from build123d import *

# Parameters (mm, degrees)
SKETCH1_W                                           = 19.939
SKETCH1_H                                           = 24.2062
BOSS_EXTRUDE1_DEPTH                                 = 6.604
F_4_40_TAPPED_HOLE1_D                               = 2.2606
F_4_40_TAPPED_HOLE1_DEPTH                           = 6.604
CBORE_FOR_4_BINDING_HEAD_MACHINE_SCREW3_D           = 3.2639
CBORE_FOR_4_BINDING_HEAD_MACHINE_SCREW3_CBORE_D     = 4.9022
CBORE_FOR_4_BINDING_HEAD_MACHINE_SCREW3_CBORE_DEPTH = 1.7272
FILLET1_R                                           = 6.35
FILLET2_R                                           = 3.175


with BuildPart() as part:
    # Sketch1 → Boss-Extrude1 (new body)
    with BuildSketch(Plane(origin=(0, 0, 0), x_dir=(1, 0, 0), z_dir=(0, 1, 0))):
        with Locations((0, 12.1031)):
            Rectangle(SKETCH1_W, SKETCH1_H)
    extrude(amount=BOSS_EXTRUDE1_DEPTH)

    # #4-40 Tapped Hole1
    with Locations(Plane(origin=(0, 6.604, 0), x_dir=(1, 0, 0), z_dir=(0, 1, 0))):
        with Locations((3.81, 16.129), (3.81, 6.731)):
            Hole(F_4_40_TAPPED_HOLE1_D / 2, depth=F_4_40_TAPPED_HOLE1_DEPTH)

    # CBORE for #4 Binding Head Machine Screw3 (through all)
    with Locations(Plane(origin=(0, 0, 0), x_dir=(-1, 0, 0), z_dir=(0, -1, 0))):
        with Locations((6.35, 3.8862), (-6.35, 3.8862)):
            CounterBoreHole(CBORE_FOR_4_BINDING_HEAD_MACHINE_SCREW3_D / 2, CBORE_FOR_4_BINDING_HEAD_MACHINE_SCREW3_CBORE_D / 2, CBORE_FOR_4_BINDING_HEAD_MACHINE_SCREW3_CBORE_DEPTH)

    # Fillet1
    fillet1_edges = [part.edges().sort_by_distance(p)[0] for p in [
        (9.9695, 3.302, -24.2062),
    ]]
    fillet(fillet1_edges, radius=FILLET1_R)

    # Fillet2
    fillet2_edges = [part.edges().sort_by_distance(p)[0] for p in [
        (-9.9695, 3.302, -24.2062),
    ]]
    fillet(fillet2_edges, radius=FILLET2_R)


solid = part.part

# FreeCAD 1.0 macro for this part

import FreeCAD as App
import Part
import Sketcher
Q = App.Units.Quantity


def edges_at(feature, points):
    """Names of the edges that pass closest to the given points."""
    edges = feature.Shape.Edges
    near = lambda p: min(range(len(edges)), key=lambda i: edges[i].distToShape(Part.Vertex(*p))[0])
    return sorted({f"Edge{near(p) + 1}" for p in points})


def add_polygon(sketch, points):
    """Adds a closed chain of lines whose ends are joined by coincident constraints."""
    first, n = sketch.GeometryCount, len(points)
    for a, b in zip(points, points[1:] + points[:1]):
        sketch.addGeometry(Part.LineSegment(App.Vector(*a, 0), App.Vector(*b, 0)), False)
    for i in range(n):
        sketch.addConstraint(Sketcher.Constraint("Coincident", first + i, 2, first + (i + 1) % n, 1))

doc = App.newDocument("Part")
params = doc.addObject("Spreadsheet::Sheet", "Params")
for row, (alias, value) in enumerate([
    ("sketch1_width", "0.785 in"),
    ("sketch1_height", "0.953 in"),
    ("pad1_length", "0.26 in"),
    ("sketch2_diameter", "0.089 in"),
    ("hole_diameter", "0.089 in"),
    ("hole_depth", "0.26 in"),
    ("hole2_diameter", "0.1285 in"),
    ("hole2_cbore_diameter", "0.193 in"),
    ("hole2_cbore_depth", "0.068 in"),
    ("fillet_radius", "0.25 in"),
    ("fillet2_radius", "0.125 in"),
], start=1):
    params.set(f"A{row}", alias)
    params.set(f"B{row}", "=" + value)
    params.setAlias(f"B{row}", alias)

body = doc.addObject("PartDesign::Body", "Body")

# Sketch on XZ plane
sketch1 = body.newObject("Sketcher::SketchObject", "Sketch")
sketch1.AttachmentSupport = (doc.getObject("XZ_Plane"), [""])
sketch1.MapMode = "FlatFace"
add_polygon(sketch1, [(-10, -24), (-10, 0), (10, 0), (10, -24)])  # lines 0-3
sketch1.addConstraint(Sketcher.Constraint("Vertical", 0))
sketch1.addConstraint(Sketcher.Constraint("Horizontal", 1))
sketch1.addConstraint(Sketcher.Constraint("Vertical", 2))
sketch1.addConstraint(Sketcher.Constraint("Horizontal", 3))
sketch1.addConstraint(Sketcher.Constraint("Symmetric", 0, 2, 1, 2, -1, 1))
sketch1.addConstraint(Sketcher.Constraint("DistanceX", 1, 1, 1, 2, Q("0.785 in")))
sketch1.addConstraint(Sketcher.Constraint("DistanceY", 0, 1, 0, 2, Q("0.953 in")))
sketch1.setExpression("Constraints[9]", "Params.sketch1_width")
sketch1.setExpression("Constraints[10]", "Params.sketch1_height")
pad1 = body.newObject("PartDesign::Pad", "Pad")
pad1.Profile = sketch1
pad1.setExpression("Length", "Params.pad1_length")
pad1.Reversed = True

# Sketch on XZ plane
sketch2 = body.newObject("Sketcher::SketchObject", "Sketch001")
sketch2.AttachmentSupport = (doc.getObject("XZ_Plane"), [""])
sketch2.MapMode = "FlatFace"
sketch2.AttachmentOffset = App.Placement(App.Vector(0, 0, -0.26 * 25.4), App.Rotation())
sketch2.addGeometry(Part.Circle(App.Vector(3.8, -16.1, 0), App.Vector(0, 0, 1), 1.1), False)
sketch2.addGeometry(Part.Circle(App.Vector(3.8, -6.7, 0), App.Vector(0, 0, 1), 1.1), False)
sketch2.addConstraint(Sketcher.Constraint("Equal", 0, 1))
sketch2.addConstraint(Sketcher.Constraint("Vertical", 0, 3, 1, 3))
sketch2.addConstraint(Sketcher.Constraint("Diameter", 0, Q("0.089 in")))
sketch2.addConstraint(Sketcher.Constraint("DistanceX", -1, 1, 0, 3, Q("0.15 in")))
sketch2.addConstraint(Sketcher.Constraint("DistanceY", 0, 3, 1, 3, Q("0.37 in")))
sketch2.addConstraint(Sketcher.Constraint("DistanceY", 0, 3, -1, 1, Q("0.635 in")))
sketch2.setExpression("Constraints[2]", "Params.sketch2_diameter")
doc.recompute()
hole = body.newObject("PartDesign::Hole", "Hole")
hole.Profile = sketch2
hole.ThreadType = "None"
hole.setExpression("Diameter", "Params.hole_diameter")
hole.DepthType = "Dimension"
hole.setExpression("Depth", "Params.hole_depth")
hole.DrillPoint = "Flat"
hole.Reversed = True

# Sketch on XZ plane
sketch3 = body.newObject("Sketcher::SketchObject", "Sketch002")
sketch3.AttachmentSupport = (doc.getObject("XZ_Plane"), [""])
sketch3.MapMode = "FlatFace"
sketch3.addGeometry(Part.Circle(App.Vector(-6.3, -3.9, 0), App.Vector(0, 0, 1), 1.6), False)
sketch3.addGeometry(Part.Circle(App.Vector(6.3, -3.9, 0), App.Vector(0, 0, 1), 1.6), False)
sketch3.addConstraint(Sketcher.Constraint("Equal", 0, 1))
sketch3.addConstraint(Sketcher.Constraint("Symmetric", 0, 3, 1, 3, -2))
sketch3.addConstraint(Sketcher.Constraint("Diameter", 0, Q("0.1285 in")))
sketch3.addConstraint(Sketcher.Constraint("DistanceX", 0, 3, 1, 3, Q("0.5 in")))
sketch3.addConstraint(Sketcher.Constraint("DistanceY", 0, 3, -1, 1, Q("0.153 in")))
doc.recompute()
hole2 = body.newObject("PartDesign::Hole", "Hole001")
hole2.Profile = sketch3
hole2.ThreadType = "None"
hole2.setExpression("Diameter", "Params.hole2_diameter")
hole2.DepthType = "ThroughAll"
hole2.HoleCutType = "Counterbore"
hole2.setExpression("HoleCutDiameter", "Params.hole2_cbore_diameter")
hole2.setExpression("HoleCutDepth", "Params.hole2_cbore_depth")
doc.recompute()

fillet = body.newObject("PartDesign::Fillet", "Fillet")
fillet.Base = (hole2, edges_at(hole2, [(9.97, 3.302, -24.206)]))
fillet.setExpression("Radius", "Params.fillet_radius")
doc.recompute()

fillet2 = body.newObject("PartDesign::Fillet", "Fillet001")
fillet2.Base = (fillet, edges_at(fillet, [(-9.97, 3.302, -24.206)]))
fillet2.setExpression("Radius", "Params.fillet2_radius")

doc.recompute()
